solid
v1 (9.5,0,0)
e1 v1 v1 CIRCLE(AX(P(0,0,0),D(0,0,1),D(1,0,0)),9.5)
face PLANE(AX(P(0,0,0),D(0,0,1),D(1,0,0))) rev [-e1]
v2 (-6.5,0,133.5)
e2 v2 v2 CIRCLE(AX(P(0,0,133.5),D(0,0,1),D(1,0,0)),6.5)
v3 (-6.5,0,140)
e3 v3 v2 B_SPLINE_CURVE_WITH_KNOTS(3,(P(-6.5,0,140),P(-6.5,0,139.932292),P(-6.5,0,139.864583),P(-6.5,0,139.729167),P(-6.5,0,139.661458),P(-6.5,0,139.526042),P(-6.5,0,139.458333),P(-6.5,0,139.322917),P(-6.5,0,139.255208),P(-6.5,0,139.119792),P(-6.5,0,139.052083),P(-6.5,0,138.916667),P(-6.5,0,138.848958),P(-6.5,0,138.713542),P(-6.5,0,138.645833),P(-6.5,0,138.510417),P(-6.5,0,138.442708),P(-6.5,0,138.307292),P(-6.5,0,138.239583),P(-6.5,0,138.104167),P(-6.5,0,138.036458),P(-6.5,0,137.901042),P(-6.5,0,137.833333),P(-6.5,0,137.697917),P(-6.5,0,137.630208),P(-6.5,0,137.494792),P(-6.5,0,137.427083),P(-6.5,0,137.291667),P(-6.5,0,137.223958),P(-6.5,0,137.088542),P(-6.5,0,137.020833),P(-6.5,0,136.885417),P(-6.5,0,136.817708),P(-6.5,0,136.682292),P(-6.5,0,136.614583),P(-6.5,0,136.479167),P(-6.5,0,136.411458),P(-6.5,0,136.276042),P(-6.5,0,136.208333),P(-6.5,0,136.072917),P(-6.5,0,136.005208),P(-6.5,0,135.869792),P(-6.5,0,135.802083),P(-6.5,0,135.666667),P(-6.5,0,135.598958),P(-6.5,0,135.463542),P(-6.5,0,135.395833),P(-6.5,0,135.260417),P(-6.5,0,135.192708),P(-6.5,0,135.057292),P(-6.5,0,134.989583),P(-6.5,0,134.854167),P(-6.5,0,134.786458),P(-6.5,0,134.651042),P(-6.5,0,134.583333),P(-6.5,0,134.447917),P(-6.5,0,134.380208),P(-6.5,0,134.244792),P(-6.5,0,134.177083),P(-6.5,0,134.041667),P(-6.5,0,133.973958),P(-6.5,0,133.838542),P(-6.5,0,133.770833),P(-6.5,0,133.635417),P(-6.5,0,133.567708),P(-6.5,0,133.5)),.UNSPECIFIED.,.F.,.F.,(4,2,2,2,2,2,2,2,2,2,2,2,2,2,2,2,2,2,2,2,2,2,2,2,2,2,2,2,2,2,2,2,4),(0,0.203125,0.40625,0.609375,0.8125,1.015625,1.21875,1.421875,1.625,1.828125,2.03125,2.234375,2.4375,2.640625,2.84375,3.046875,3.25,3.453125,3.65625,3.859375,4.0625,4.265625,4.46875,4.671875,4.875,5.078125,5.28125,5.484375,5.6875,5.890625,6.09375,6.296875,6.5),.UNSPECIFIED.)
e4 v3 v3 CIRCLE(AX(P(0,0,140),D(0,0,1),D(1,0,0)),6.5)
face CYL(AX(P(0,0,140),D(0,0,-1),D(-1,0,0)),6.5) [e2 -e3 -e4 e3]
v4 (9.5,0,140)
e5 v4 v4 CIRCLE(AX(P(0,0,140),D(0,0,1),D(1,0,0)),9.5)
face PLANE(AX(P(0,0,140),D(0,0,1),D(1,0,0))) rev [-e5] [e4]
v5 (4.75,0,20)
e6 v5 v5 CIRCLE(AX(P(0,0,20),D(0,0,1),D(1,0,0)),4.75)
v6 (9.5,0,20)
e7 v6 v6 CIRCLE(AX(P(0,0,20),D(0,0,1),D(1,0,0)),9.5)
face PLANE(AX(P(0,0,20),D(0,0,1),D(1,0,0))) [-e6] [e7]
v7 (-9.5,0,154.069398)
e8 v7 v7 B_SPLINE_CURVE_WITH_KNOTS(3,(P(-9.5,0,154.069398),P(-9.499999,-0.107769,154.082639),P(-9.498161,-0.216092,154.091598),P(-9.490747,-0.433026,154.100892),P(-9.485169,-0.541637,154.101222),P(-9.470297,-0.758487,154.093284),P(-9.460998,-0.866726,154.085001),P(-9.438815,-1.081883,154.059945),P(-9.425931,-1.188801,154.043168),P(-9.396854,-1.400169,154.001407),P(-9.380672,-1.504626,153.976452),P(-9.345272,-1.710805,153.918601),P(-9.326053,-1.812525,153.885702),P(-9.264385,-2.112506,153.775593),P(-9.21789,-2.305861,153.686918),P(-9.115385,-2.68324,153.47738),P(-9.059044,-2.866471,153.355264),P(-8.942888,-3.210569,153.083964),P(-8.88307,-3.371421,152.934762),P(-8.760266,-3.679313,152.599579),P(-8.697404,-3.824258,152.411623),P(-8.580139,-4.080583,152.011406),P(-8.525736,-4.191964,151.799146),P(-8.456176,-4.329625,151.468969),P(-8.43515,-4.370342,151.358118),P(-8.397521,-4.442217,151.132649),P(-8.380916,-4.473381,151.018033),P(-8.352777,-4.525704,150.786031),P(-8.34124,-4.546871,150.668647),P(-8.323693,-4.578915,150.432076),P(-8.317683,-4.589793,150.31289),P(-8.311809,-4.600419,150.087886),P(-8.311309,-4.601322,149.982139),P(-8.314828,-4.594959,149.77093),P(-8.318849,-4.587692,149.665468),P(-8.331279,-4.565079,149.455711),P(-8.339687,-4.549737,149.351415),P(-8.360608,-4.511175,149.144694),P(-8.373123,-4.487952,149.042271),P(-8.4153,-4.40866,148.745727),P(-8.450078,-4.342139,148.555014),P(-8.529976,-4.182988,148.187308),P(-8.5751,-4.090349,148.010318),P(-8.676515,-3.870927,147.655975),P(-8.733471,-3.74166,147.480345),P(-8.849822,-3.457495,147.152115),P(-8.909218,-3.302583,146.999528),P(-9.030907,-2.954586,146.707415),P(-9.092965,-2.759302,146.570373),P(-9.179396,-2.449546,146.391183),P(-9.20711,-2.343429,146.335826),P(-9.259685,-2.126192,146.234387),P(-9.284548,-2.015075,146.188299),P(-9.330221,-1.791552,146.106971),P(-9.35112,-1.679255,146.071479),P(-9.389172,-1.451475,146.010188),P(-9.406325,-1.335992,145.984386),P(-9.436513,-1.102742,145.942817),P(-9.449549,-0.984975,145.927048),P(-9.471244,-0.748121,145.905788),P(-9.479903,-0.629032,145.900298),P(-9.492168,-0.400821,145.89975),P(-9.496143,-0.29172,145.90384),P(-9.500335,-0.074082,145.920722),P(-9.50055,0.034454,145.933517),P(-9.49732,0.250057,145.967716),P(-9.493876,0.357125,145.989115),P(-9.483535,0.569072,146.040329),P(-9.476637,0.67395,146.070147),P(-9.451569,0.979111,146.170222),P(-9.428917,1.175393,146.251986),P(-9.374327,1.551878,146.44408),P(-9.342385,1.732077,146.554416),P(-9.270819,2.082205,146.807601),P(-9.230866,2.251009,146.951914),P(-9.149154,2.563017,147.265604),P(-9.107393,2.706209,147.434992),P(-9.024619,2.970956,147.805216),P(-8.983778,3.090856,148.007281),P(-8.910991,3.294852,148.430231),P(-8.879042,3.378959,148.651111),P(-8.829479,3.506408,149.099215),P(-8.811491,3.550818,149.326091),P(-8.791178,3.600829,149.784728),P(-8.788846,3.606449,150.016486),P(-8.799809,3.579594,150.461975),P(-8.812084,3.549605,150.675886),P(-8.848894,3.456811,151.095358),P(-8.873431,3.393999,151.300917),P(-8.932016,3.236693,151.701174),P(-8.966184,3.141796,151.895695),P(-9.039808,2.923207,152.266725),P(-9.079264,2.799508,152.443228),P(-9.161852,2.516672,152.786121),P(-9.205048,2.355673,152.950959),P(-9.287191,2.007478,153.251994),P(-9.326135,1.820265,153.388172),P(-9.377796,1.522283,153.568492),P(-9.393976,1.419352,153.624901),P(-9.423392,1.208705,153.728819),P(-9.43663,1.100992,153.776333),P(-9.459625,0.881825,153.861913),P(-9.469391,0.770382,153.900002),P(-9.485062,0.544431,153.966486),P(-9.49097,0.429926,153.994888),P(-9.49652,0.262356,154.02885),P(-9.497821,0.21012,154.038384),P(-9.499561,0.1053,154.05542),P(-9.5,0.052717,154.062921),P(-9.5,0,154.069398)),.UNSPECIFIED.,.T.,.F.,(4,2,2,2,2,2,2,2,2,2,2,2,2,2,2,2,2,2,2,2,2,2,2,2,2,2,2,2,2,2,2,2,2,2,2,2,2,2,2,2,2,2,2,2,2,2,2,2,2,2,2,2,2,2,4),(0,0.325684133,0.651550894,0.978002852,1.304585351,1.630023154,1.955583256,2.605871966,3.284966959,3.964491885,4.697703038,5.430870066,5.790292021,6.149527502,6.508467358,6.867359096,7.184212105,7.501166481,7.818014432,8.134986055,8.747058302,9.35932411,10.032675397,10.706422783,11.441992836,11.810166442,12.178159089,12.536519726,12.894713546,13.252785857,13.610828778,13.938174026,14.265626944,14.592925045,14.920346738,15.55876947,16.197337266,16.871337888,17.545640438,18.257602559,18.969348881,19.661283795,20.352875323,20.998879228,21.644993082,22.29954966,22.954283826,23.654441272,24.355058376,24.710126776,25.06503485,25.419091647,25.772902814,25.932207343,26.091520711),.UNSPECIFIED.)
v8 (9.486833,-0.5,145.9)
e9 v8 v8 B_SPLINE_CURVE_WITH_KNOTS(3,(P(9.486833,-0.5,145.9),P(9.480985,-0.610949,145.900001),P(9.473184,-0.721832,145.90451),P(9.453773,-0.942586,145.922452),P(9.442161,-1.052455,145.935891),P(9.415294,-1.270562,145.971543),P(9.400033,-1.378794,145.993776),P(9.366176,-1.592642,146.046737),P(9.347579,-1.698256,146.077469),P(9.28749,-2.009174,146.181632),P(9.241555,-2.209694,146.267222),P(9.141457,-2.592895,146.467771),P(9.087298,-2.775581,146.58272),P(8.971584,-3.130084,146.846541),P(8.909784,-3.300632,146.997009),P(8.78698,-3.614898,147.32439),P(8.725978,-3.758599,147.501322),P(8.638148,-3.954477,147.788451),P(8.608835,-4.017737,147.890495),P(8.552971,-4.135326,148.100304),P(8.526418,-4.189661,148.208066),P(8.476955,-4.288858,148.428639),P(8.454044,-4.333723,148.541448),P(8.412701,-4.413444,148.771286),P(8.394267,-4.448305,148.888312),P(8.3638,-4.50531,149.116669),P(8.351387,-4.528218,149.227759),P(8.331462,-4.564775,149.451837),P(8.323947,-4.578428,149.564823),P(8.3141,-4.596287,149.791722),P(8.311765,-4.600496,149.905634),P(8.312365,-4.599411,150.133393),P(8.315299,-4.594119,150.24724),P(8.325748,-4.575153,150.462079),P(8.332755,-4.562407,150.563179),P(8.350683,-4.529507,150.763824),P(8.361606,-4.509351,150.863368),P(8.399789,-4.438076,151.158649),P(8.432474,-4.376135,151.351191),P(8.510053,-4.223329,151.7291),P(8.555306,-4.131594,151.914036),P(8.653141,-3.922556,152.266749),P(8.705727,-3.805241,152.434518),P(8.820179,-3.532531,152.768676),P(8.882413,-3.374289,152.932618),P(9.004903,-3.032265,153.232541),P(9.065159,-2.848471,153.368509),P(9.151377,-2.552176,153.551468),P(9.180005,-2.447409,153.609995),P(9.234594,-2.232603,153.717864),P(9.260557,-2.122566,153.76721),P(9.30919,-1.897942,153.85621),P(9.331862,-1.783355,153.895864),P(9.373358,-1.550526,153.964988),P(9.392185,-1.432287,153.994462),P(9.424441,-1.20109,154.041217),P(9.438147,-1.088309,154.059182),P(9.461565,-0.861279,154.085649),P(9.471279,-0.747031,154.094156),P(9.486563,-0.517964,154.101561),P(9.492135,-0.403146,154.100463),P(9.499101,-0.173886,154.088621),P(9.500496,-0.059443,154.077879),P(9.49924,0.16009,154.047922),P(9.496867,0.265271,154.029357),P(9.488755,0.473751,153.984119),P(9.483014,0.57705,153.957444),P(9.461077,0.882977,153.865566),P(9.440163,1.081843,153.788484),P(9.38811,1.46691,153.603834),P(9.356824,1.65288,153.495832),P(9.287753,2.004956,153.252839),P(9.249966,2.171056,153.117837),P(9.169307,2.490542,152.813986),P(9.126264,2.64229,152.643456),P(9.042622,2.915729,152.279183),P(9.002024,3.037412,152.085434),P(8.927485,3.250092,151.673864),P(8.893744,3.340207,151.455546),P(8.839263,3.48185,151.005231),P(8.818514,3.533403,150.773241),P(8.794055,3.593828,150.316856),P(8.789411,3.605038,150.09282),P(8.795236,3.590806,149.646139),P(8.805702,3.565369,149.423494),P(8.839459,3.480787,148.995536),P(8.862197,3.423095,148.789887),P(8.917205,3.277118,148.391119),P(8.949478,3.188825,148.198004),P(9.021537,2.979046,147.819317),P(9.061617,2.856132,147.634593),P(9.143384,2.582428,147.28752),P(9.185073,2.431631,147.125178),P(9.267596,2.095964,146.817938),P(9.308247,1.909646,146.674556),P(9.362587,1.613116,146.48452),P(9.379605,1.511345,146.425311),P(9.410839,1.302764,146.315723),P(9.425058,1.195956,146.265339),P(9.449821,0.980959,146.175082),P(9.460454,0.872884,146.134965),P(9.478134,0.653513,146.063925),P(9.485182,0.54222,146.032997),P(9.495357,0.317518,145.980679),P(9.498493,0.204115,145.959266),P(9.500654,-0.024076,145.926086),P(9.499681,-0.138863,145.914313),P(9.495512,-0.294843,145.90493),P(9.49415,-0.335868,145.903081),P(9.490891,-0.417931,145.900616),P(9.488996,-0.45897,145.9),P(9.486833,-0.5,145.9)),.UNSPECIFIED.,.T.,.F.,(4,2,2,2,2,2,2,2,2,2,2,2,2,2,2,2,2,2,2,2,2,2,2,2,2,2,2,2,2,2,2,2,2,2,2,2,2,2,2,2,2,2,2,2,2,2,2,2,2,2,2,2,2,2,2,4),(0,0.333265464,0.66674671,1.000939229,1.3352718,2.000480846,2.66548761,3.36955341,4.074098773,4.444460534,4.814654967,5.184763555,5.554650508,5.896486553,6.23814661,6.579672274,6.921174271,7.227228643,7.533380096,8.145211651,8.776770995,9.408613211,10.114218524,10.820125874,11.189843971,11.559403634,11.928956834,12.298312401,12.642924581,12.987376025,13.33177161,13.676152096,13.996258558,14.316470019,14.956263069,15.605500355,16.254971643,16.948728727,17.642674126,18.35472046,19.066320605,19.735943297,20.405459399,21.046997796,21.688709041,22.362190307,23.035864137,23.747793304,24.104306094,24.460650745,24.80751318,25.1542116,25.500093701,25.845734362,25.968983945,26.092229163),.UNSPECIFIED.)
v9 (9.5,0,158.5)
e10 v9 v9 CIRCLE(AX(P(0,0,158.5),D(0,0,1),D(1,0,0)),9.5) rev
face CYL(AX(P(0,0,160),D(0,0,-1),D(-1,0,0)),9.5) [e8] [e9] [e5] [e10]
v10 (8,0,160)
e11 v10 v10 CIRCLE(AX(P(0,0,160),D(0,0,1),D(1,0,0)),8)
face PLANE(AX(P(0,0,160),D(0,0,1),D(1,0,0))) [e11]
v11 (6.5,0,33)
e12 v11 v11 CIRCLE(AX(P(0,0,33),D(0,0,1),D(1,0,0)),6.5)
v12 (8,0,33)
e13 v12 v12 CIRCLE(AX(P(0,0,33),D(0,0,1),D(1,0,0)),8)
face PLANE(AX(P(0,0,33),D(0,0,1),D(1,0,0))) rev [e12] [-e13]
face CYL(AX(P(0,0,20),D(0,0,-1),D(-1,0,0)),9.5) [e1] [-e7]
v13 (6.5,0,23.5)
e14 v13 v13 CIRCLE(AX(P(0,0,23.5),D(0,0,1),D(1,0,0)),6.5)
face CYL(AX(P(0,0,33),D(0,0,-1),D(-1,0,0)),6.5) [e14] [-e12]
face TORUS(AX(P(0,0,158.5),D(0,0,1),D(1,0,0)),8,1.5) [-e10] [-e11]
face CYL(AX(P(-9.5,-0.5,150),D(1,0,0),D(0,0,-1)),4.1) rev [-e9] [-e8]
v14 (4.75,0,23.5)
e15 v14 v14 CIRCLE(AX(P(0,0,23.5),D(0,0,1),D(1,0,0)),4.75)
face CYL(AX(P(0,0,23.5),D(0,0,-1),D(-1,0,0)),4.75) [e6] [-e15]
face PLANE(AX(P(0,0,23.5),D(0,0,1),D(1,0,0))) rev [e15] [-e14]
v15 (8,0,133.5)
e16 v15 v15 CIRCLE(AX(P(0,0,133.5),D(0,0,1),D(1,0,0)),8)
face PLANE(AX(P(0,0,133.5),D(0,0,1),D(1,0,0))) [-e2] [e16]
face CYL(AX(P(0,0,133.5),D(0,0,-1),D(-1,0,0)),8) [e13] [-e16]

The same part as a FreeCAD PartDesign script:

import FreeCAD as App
import Part
import Sketcher
from FreeCAD import Vector


def edges_at(feature, points):
    """Names of the edges that pass closest to the given points."""
    edges = feature.Shape.Edges
    near = lambda p: min(range(len(edges)), key=lambda i: edges[i].distToShape(Part.Vertex(*p))[0])
    return sorted({f"Edge{near(p) + 1}" for p in points})

doc = App.newDocument("Part")
body = doc.addObject("PartDesign::Body", "Body")

sketch1 = body.newObject("Sketcher::SketchObject", "Sketch")
sketch1.AttachmentSupport = (doc.getObject("XY_Plane"), [""])
sketch1.MapMode = "FlatFace"
sketch1.addGeometry(Part.Circle(Vector(0, 0, 0), Vector(0, 0, 1), 10), False)
sketch1.addConstraint([
    Sketcher.Constraint("Coincident", 0, 3, -1, 1),
    Sketcher.Constraint("Diameter", 0, 19.0),
])
pad1 = body.newObject("PartDesign::Pad", "Pad")
pad1.Profile = sketch1
pad1.Length = 20

sketch2 = body.newObject("Sketcher::SketchObject", "Sketch001")
sketch2.AttachmentSupport = (doc.getObject("XY_Plane"), [""])
sketch2.MapMode = "FlatFace"
sketch2.AttachmentOffset = App.Placement(Vector(0, 0, 20), App.Rotation())
sketch2.addGeometry(Part.Circle(Vector(0, 0, 0), Vector(0, 0, 1), 4.8), False)
sketch2.addConstraint([
    Sketcher.Constraint("Coincident", 0, 3, -1, 1),
    Sketcher.Constraint("Diameter", 0, 9.5),
])
pad2 = body.newObject("PartDesign::Pad", "Pad001")
pad2.Profile = sketch2
pad2.Length = 3.5

sketch3 = body.newObject("Sketcher::SketchObject", "Sketch002")
sketch3.AttachmentSupport = (doc.getObject("XY_Plane"), [""])
sketch3.MapMode = "FlatFace"
sketch3.AttachmentOffset = App.Placement(Vector(0, 0, 23.5), App.Rotation())
sketch3.addGeometry(Part.Circle(Vector(0, 0, 0), Vector(0, 0, 1), 6), False)
sketch3.addConstraint([
    Sketcher.Constraint("Coincident", 0, 3, -1, 1),
    Sketcher.Constraint("Diameter", 0, 13.0),
])
pad3 = body.newObject("PartDesign::Pad", "Pad002")
pad3.Profile = sketch3
pad3.Length = 9.5

sketch4 = body.newObject("Sketcher::SketchObject", "Sketch003")
sketch4.AttachmentSupport = (doc.getObject("XY_Plane"), [""])
sketch4.MapMode = "FlatFace"
sketch4.AttachmentOffset = App.Placement(Vector(0, 0, 33), App.Rotation())
sketch4.addGeometry(Part.Circle(Vector(0, 0, 0), Vector(0, 0, 1), 8), False)
sketch4.addConstraint([
    Sketcher.Constraint("Coincident", 0, 3, -1, 1),
    Sketcher.Constraint("Diameter", 0, 16.0),
])
pad4 = body.newObject("PartDesign::Pad", "Pad003")
pad4.Profile = sketch4
pad4.Length = 100.5

sketch5 = body.newObject("Sketcher::SketchObject", "Sketch004")
sketch5.AttachmentSupport = (doc.getObject("XY_Plane"), [""])
sketch5.MapMode = "FlatFace"
sketch5.AttachmentOffset = App.Placement(Vector(0, 0, 133.5), App.Rotation())
sketch5.addGeometry(Part.Circle(Vector(0, 0, 0), Vector(0, 0, 1), 6), False)
sketch5.addConstraint([
    Sketcher.Constraint("Coincident", 0, 3, -1, 1),
    Sketcher.Constraint("Diameter", 0, 13.0),
])
pad5 = body.newObject("PartDesign::Pad", "Pad004")
pad5.Profile = sketch5
pad5.Length = 6.5

sketch6 = body.newObject("Sketcher::SketchObject", "Sketch005")
sketch6.AttachmentSupport = (doc.getObject("XY_Plane"), [""])
sketch6.MapMode = "FlatFace"
sketch6.AttachmentOffset = App.Placement(Vector(0, 0, 140), App.Rotation())
sketch6.addGeometry(Part.Circle(Vector(0, 0, 0), Vector(0, 0, 1), 10), False)
sketch6.addConstraint([
    Sketcher.Constraint("Coincident", 0, 3, -1, 1),
    Sketcher.Constraint("Diameter", 0, 19.0),
])
pad6 = body.newObject("PartDesign::Pad", "Pad005")
pad6.Profile = sketch6
pad6.Length = 20

sketch7 = body.newObject("Sketcher::SketchObject", "Sketch006")
sketch7.AttachmentSupport = (doc.getObject("YZ_Plane"), [""])
sketch7.MapMode = "FlatFace"
sketch7.addGeometry(Part.Circle(Vector(-0.5, 150, 0), Vector(0, 0, 1), 4.1), False)
sketch7.addConstraint([
    Sketcher.Constraint("Diameter", 0, 8.2),
    Sketcher.Constraint("DistanceY", -1, 1, 0, 3, 150.0),
    Sketcher.Constraint("DistanceX", 0, 3, -1, 1, 0.5),
])
pocket1 = body.newObject("PartDesign::Pocket", "Pocket")
pocket1.Profile = sketch7
pocket1.Type = "ThroughAll"
pocket1.Midplane = True
doc.recompute()

fillet = body.newObject("PartDesign::Fillet", "Fillet")
fillet.Base = (pocket1, edges_at(pocket1, [(-9.5, 0, 160)]))
fillet.Radius = 1.5

doc.recompute()
